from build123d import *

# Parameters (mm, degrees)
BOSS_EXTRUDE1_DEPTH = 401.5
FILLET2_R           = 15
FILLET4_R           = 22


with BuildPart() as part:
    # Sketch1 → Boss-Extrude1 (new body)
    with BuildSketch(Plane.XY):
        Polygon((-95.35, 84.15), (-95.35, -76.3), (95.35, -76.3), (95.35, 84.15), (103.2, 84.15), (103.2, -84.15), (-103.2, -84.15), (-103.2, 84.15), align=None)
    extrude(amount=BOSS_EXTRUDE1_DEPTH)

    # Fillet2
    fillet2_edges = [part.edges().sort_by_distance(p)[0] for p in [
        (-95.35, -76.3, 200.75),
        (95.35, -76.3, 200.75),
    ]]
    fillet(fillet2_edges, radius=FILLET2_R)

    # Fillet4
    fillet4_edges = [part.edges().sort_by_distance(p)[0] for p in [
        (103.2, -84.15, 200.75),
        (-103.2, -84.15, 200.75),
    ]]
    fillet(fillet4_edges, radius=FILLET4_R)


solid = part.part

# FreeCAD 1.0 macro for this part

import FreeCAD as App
import Part
import Sketcher
from FreeCAD import Vector
Q = App.Units.Quantity


def edges_at(feature, points):
    """Names of the edges that pass closest to the given points."""
    edges = feature.Shape.Edges
    near = lambda p: min(range(len(edges)), key=lambda i: edges[i].distToShape(Part.Vertex(*p))[0])
    return sorted({f"Edge{near(p) + 1}" for p in points})

doc = App.newDocument("Part")
params = doc.addObject("Spreadsheet::Sheet", "Params")
for row, (alias, value) in enumerate([
    ("sketch1_width", "206.4 mm"),
    ("sketch1_width2", "190.7 mm"),
    ("sketch1_height", "168.3 mm"),
    ("sketch1_height2", "160.45 mm"),
    ("pad1_length", "401.5 mm"),
    ("fillet_radius", "15 mm"),
    ("fillet2_radius", "22 mm"),
], start=1):
    params.set(f"A{row}", alias)
    params.set(f"B{row}", "=" + value)
    params.setAlias(f"B{row}", alias)

body = doc.addObject("PartDesign::Body", "Body")

sketch1 = body.newObject("Sketcher::SketchObject", "Sketch")
sketch1.AttachmentSupport = (doc.getObject("XY_Plane"), [""])
sketch1.MapMode = "FlatFace"
sketch1.addGeometry(Part.LineSegment(Vector(-95, -76, 0), Vector(-95, 84, 0)), False)
sketch1.addGeometry(Part.LineSegment(Vector(-95, 84, 0), Vector(-103, 84, 0)), False)
sketch1.addGeometry(Part.LineSegment(Vector(-103, 84, 0), Vector(-103, -84, 0)), False)
sketch1.addGeometry(Part.LineSegment(Vector(-103, -84, 0), Vector(103, -84, 0)), False)
sketch1.addGeometry(Part.LineSegment(Vector(103, -84, 0), Vector(103, 84, 0)), False)
sketch1.addGeometry(Part.LineSegment(Vector(103, 84, 0), Vector(95, 84, 0)), False)
sketch1.addGeometry(Part.LineSegment(Vector(95, 84, 0), Vector(95, -76, 0)), False)
sketch1.addGeometry(Part.LineSegment(Vector(95, -76, 0), Vector(-95, -76, 0)), False)
sketch1.addConstraint(Sketcher.Constraint("Coincident", 0, 2, 1, 1))
sketch1.addConstraint(Sketcher.Constraint("Coincident", 1, 2, 2, 1))
sketch1.addConstraint(Sketcher.Constraint("Coincident", 2, 2, 3, 1))
sketch1.addConstraint(Sketcher.Constraint("Coincident", 3, 2, 4, 1))
sketch1.addConstraint(Sketcher.Constraint("Coincident", 4, 2, 5, 1))
sketch1.addConstraint(Sketcher.Constraint("Coincident", 5, 2, 6, 1))
sketch1.addConstraint(Sketcher.Constraint("Coincident", 6, 2, 7, 1))
sketch1.addConstraint(Sketcher.Constraint("Coincident", 7, 2, 0, 1))
sketch1.addConstraint(Sketcher.Constraint("Vertical", 0))
sketch1.addConstraint(Sketcher.Constraint("Horizontal", 1))
sketch1.addConstraint(Sketcher.Constraint("Vertical", 2))
sketch1.addConstraint(Sketcher.Constraint("Horizontal", 3))
sketch1.addConstraint(Sketcher.Constraint("Vertical", 4))
sketch1.addConstraint(Sketcher.Constraint("Horizontal", 5))
sketch1.addConstraint(Sketcher.Constraint("Vertical", 6))
sketch1.addConstraint(Sketcher.Constraint("Horizontal", 7))
sketch1.addConstraint(Sketcher.Constraint("Symmetric", 1, 2, 3, 2, -1, 1))
sketch1.addConstraint(Sketcher.Constraint("Symmetric", 0, 2, 5, 2, -2))
sketch1.addConstraint(Sketcher.Constraint("DistanceX", 3, 1, 3, 2, Q("206.4 mm")))
sketch1.addConstraint(Sketcher.Constraint("DistanceX", 7, 2, 7, 1, Q("190.7 mm")))
sketch1.addConstraint(Sketcher.Constraint("DistanceY", 2, 2, 2, 1, Q("168.3 mm")))
sketch1.addConstraint(Sketcher.Constraint("DistanceY", 0, 1, 0, 2, Q("160.45 mm")))
sketch1.setExpression("Constraints[18]", "Params.sketch1_width")
sketch1.setExpression("Constraints[19]", "Params.sketch1_width2")
sketch1.setExpression("Constraints[20]", "Params.sketch1_height")
sketch1.setExpression("Constraints[21]", "Params.sketch1_height2")
pad1 = body.newObject("PartDesign::Pad", "Pad")
pad1.Profile = sketch1
pad1.setExpression("Length", "Params.pad1_length")
doc.recompute()

fillet = body.newObject("PartDesign::Fillet", "Fillet")
fillet.Base = (pad1, edges_at(pad1, [(-95.35, -76.3, 200.75), (95.35, -76.3, 200.75)]))
fillet.setExpression("Radius", "Params.fillet_radius")
doc.recompute()

fillet2 = body.newObject("PartDesign::Fillet", "Fillet001")
fillet2.Base = (fillet, edges_at(fillet, [(103.2, -84.15, 200.75), (-103.2, -84.15, 200.75)]))
fillet2.setExpression("Radius", "Params.fillet2_radius")

doc.recompute()
